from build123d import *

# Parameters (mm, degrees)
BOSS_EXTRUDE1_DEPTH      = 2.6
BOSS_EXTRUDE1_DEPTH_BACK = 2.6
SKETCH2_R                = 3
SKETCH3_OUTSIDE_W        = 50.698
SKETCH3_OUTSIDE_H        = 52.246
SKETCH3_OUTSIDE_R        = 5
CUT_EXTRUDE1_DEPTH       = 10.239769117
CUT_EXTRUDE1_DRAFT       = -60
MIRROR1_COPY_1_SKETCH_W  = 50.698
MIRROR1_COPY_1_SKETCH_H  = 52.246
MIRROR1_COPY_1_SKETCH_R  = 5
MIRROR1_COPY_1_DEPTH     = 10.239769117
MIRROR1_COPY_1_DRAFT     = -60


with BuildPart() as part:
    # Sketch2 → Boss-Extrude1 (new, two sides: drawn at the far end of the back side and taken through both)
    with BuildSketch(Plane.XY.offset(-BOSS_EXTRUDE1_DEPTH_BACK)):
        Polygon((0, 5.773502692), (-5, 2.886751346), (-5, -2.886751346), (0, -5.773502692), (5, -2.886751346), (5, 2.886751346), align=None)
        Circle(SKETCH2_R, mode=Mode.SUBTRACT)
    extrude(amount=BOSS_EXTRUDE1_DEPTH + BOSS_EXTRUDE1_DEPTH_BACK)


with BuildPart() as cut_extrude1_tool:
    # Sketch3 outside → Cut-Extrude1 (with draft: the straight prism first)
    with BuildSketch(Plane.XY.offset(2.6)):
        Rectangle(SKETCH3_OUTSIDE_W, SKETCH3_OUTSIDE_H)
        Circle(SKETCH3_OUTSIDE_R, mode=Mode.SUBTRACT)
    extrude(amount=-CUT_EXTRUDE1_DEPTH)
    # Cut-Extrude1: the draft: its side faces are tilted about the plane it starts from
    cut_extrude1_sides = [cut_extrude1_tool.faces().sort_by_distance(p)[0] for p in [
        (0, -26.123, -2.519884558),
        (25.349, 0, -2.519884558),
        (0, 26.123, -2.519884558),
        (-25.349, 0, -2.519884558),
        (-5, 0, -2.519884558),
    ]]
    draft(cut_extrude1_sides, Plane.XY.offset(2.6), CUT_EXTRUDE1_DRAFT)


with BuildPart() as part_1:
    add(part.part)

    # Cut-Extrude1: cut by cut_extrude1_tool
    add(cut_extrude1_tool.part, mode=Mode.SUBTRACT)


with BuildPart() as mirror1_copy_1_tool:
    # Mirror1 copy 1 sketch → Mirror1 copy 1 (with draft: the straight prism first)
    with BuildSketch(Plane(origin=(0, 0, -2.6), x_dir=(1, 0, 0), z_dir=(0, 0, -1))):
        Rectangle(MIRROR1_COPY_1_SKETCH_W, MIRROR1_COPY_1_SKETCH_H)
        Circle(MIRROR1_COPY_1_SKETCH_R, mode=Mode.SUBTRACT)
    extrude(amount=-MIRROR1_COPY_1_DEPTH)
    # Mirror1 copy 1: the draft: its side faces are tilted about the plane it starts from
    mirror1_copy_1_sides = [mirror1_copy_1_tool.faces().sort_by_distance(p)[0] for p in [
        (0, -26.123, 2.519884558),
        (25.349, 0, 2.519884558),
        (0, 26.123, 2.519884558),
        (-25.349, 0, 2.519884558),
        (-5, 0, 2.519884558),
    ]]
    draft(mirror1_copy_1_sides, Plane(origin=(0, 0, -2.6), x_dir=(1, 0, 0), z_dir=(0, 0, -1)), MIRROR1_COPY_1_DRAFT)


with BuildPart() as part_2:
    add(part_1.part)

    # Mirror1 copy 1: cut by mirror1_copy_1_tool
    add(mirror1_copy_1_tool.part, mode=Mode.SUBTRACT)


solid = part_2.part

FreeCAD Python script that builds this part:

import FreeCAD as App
import Part
import Sketcher
from FreeCAD import Vector
Q = App.Units.Quantity


def faces_at(feature, points):
    """Names of the faces that lie closest to the given points."""
    faces = feature.Shape.Faces
    near = lambda p: min(range(len(faces)), key=lambda i: faces[i].distToShape(Part.Vertex(*p))[0])
    return sorted({f"Face{near(p) + 1}" for p in points})


def add_polygon(sketch, points):
    """Adds a closed chain of lines whose ends are joined by coincident constraints."""
    first, n = sketch.GeometryCount, len(points)
    for a, b in zip(points, points[1:] + points[:1]):
        sketch.addGeometry(Part.LineSegment(App.Vector(*a, 0), App.Vector(*b, 0)), False)
    for i in range(n):
        sketch.addConstraint(Sketcher.Constraint("Coincident", first + i, 2, first + (i + 1) % n, 1))

doc = App.newDocument("Part")
body = doc.addObject("PartDesign::Body", "Body")

# Sketch on XY plane
sketch1 = doc.addObject("Sketcher::SketchObject", "Sketch")
body.addObject(sketch1)
sketch1.AttachmentSupport = (doc.XY_Plane, [""])
sketch1.MapMode = "FlatFace"
add_polygon(sketch1, [(0, 5.8), (-5, 2.9), (-5, -2.9), (0, -5.8), (5, -2.9), (5, 2.9)])  # lines 0-5
sketch1.addGeometry(Part.Circle(Vector(0, 0, 0), Vector(0, 0, 1), 3), False)  # 6
sketch1.addConstraint([
    Sketcher.Constraint("Vertical", 1),
    Sketcher.Constraint("Vertical", 4),
    Sketcher.Constraint("Coincident", 6, 3, -1, 1),
    Sketcher.Constraint("Symmetric", 0, 2, 3, 2, -1, 1),
    Sketcher.Constraint("Symmetric", 2, 2, 5, 2, -1, 1),
    Sketcher.Constraint("PointOnObject", 2, 2, -2),
    Sketcher.Constraint("Parallel", 2, 5),
    Sketcher.Constraint("Horizontal", 1, 2, 3, 2),
    Sketcher.Constraint("Diameter", 6, Q("6 mm")),
    Sketcher.Constraint("Angle", 0, Q("-150 deg")),
    Sketcher.Constraint("DistanceX", 0, 2, -1, 1, Q("5 mm")),
    Sketcher.Constraint("DistanceY", 1, 2, 1, 1, Q("5.773503 mm")),
])
pad1 = doc.addObject("PartDesign::Pad", "Pad")
body.addObject(pad1)
pad1.Profile = sketch1
pad1.Type = "TwoLengths"
pad1.Length = 2.6
pad1.Length2 = 2.6
body2 = doc.addObject("PartDesign::Body", "Body001")

# Sketch on XY plane
sketch2 = doc.addObject("Sketcher::SketchObject", "Sketch001")
body2.addObject(sketch2)
sketch2.AttachmentSupport = (doc.getObject("XY_Plane001"), [""])
sketch2.MapMode = "FlatFace"
sketch2.AttachmentOffset = App.Placement(Vector(0, 0, 2.6), App.Rotation())
add_polygon(sketch2, [(-25, 26), (-25, -26), (25, -26), (25, 26)])  # lines 0-3
sketch2.addGeometry(Part.Circle(Vector(0, 0, 0), Vector(0, 0, 1), 5), False)  # 4
sketch2.addConstraint([
    Sketcher.Constraint("Vertical", 0),
    Sketcher.Constraint("Horizontal", 1),
    Sketcher.Constraint("Vertical", 2),
    Sketcher.Constraint("Horizontal", 3),
    Sketcher.Constraint("Coincident", 4, 3, -1, 1),
    Sketcher.Constraint("Symmetric", 0, 2, 2, 2, -1, 1),
    Sketcher.Constraint("Diameter", 4, Q("10 mm")),
    Sketcher.Constraint("DistanceX", 1, 1, 1, 2, Q("50.698 mm")),
    Sketcher.Constraint("DistanceY", 0, 2, 0, 1, Q("52.246 mm")),
])
pad2 = doc.addObject("PartDesign::Pad", "Pad001")
body2.addObject(pad2)
pad2.Profile = sketch2
pad2.Length = 10.239769
pad2.Reversed = True
doc.recompute()

datumplane = doc.addObject("PartDesign::Plane", "DatumPlane")
body2.addObject(datumplane)
datumplane.AttachmentSupport = (doc.getObject("XY_Plane001"), [""])
datumplane.MapMode = "FlatFace"
datumplane.AttachmentOffset = App.Placement(Vector(0, 0, 2.6), App.Rotation())
draft = doc.addObject("PartDesign::Draft", "Draft")
body2.addObject(draft)
draft.Base = (pad2, faces_at(pad2, [
    (0, -26.123, -2.52),
    (25.349, 0, -2.52),
    (0, 26.123, -2.52),
    (-25.349, 0, -2.52),
    (-5, 0, -2.52),
]))
draft.NeutralPlane = (datumplane, [""])
draft.Angle = 60
draft.Reversed = True
doc.recompute()

boolean = doc.addObject("PartDesign::Boolean", "Boolean")
body.addObject(boolean)
boolean.Type = "Cut"
boolean.addObjects([body2])
body3 = doc.addObject("PartDesign::Body", "Body002")

# Sketch on XY plane
sketch3 = doc.addObject("Sketcher::SketchObject", "Sketch002")
body3.addObject(sketch3)
sketch3.AttachmentSupport = (doc.getObject("XY_Plane002"), [""])
sketch3.MapMode = "FlatFace"
sketch3.AttachmentOffset = App.Placement(Vector(0, 0, -2.6), App.Rotation())
add_polygon(sketch3, [(-25, -26), (-25, 26), (25, 26), (25, -26)])  # lines 0-3
sketch3.addGeometry(Part.Circle(Vector(0, 0, 0), Vector(0, 0, 1), 5), False)  # 4
sketch3.addConstraint([
    Sketcher.Constraint("Vertical", 0),
    Sketcher.Constraint("Horizontal", 1),
    Sketcher.Constraint("Vertical", 2),
    Sketcher.Constraint("Horizontal", 3),
    Sketcher.Constraint("Coincident", 4, 3, -1, 1),
    Sketcher.Constraint("Symmetric", 0, 2, 2, 2, -1, 1),
    Sketcher.Constraint("Diameter", 4, Q("10 mm")),
    Sketcher.Constraint("DistanceX", 1, 1, 1, 2, Q("50.698 mm")),
    Sketcher.Constraint("DistanceY", 0, 1, 0, 2, Q("52.246 mm")),
])
pad3 = doc.addObject("PartDesign::Pad", "Pad002")
body3.addObject(pad3)
pad3.Profile = sketch3
pad3.Length = 10.239769
doc.recompute()

datumplane2 = doc.addObject("PartDesign::Plane", "DatumPlane001")
body3.addObject(datumplane2)
datumplane2.AttachmentSupport = (doc.getObject("XY_Plane002"), [""])
datumplane2.MapMode = "FlatFace"
datumplane2.AttachmentOffset = App.Placement(Vector(0, 0, -2.6), App.Rotation())
draft2 = doc.addObject("PartDesign::Draft", "Draft001")
body3.addObject(draft2)
draft2.Base = (pad3, faces_at(pad3, [
    (0, -26.123, 2.52),
    (25.349, 0, 2.52),
    (0, 26.123, 2.52),
    (-25.349, 0, 2.52),
    (-5, 0, 2.52),
]))
draft2.NeutralPlane = (datumplane2, [""])
draft2.Angle = 60
draft2.Reversed = False
doc.recompute()

boolean2 = doc.addObject("PartDesign::Boolean", "Boolean001")
body.addObject(boolean2)
boolean2.Type = "Cut"
boolean2.addObjects([body3])

doc.recompute()
